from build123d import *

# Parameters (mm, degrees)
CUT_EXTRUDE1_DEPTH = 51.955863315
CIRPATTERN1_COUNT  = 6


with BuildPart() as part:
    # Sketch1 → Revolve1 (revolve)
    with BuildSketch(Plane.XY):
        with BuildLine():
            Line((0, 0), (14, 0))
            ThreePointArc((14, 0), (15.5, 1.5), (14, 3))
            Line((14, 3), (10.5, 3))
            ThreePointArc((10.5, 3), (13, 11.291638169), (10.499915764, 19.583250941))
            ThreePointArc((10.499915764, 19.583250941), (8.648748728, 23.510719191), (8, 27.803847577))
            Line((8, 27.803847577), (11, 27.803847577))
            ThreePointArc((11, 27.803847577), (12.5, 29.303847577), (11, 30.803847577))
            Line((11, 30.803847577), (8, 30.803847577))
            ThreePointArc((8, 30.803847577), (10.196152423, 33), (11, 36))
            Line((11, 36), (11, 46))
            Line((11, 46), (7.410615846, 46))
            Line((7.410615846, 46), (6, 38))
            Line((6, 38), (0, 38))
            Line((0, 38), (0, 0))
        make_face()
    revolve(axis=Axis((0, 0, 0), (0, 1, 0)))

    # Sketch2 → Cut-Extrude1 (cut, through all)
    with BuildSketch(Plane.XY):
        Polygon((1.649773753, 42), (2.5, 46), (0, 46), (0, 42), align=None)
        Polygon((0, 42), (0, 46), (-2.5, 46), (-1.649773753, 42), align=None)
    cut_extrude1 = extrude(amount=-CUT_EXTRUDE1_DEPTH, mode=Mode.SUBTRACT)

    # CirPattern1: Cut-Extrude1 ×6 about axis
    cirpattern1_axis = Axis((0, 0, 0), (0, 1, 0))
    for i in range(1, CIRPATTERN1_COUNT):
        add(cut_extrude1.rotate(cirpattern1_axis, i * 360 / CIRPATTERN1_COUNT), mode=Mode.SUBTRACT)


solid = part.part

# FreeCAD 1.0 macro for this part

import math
import FreeCAD as App
import Part
import Sketcher
Q = App.Units.Quantity

doc = App.newDocument("Part")
params = doc.addObject("Spreadsheet::Sheet", "Params")
for row, (alias, value) in enumerate([
    ("sketch1_radius", "15 mm"),
    ("sketch1_radius2", "6 mm"),
    ("sketch1_radius3", "1.5 mm"),
    ("sketch1_width", "14 mm"),
    ("sketch1_width2", "3 mm"),
    ("revolution_angle", "360 deg"),
    ("sketch2_width", "5 mm"),
], start=1):
    params.set(f"A{row}", alias)
    params.set(f"B{row}", "=" + value)
    params.setAlias(f"B{row}", alias)

body = doc.addObject("PartDesign::Body", "Body")

# Sketch on XY plane
sketch1 = body.newObject("Sketcher::SketchObject", "Sketch")
sketch1.AttachmentSupport = (doc.getObject("XY_Plane"), [""])
sketch1.MapMode = "FlatFace"
sketch1.addGeometry([
    Part.LineSegment(App.Vector(0, 0, 0), App.Vector(14, 0, 0)),  # 0
    Part.ArcOfCircle(Part.Circle(App.Vector(14, 1.5, 0), App.Vector(0, 0, 1), 1.5), math.radians(-90), math.radians(90)),  # 1
    Part.LineSegment(App.Vector(14, 3, 0), App.Vector(10.5, 3, 0)),  # 2
    Part.ArcOfCircle(Part.Circle(App.Vector(-2, 11.3, 0), App.Vector(0, 0, 1), 15), math.radians(-34), math.radians(34)),  # 3
    Part.ArcOfCircle(Part.Circle(App.Vector(23, 27.9, 0), App.Vector(0, 0, 1), 15), math.radians(-180), math.radians(-146)),  # 4
    Part.LineSegment(App.Vector(8, 27.8, 0), App.Vector(11, 27.8, 0)),  # 5
    Part.ArcOfCircle(Part.Circle(App.Vector(11, 29.3, 0), App.Vector(0, 0, 1), 1.5), math.radians(-90), math.radians(90)),  # 6
    Part.LineSegment(App.Vector(11, 30.8, 0), App.Vector(8, 30.8, 0)),  # 7
    Part.ArcOfCircle(Part.Circle(App.Vector(5, 36, 0), App.Vector(0, 0, 1), 6), math.radians(-60), math.radians(0)),  # 8
    Part.LineSegment(App.Vector(11, 36, 0), App.Vector(11, 46, 0)),  # 9
    Part.LineSegment(App.Vector(11, 46, 0), App.Vector(7.4, 46, 0)),  # 10
    Part.LineSegment(App.Vector(7.4, 46, 0), App.Vector(6, 38, 0)),  # 11
    Part.LineSegment(App.Vector(6, 38, 0), App.Vector(0, 38, 0)),  # 12
    Part.LineSegment(App.Vector(0, 38, 0), App.Vector(0, 0, 0)),  # 13
], False)
sketch1.addConstraint([
    Sketcher.Constraint("Tangent", 0, 2, 1, 1),
    Sketcher.Constraint("Tangent", 1, 2, 2, 1),
    Sketcher.Constraint("Coincident", 2, 2, 3, 1),
    Sketcher.Constraint("Tangent", 3, 2, 4, 2),
    Sketcher.Constraint("Coincident", 4, 1, 5, 1),
    Sketcher.Constraint("Tangent", 5, 2, 6, 1),
    Sketcher.Constraint("Tangent", 6, 2, 7, 1),
    Sketcher.Constraint("Coincident", 7, 2, 8, 1),
    Sketcher.Constraint("Tangent", 8, 2, 9, 1),
    Sketcher.Constraint("Coincident", 9, 2, 10, 1),
    Sketcher.Constraint("Coincident", 10, 2, 11, 1),
    Sketcher.Constraint("Coincident", 11, 2, 12, 1),
    Sketcher.Constraint("Coincident", 12, 2, 13, 1),
    Sketcher.Constraint("Coincident", 13, 2, 0, 1),
    Sketcher.Constraint("Horizontal", 0),
    Sketcher.Constraint("Horizontal", 2),
    Sketcher.Constraint("Horizontal", 5),
    Sketcher.Constraint("Horizontal", 7),
    Sketcher.Constraint("Vertical", 9),
    Sketcher.Constraint("Horizontal", 10),
    Sketcher.Constraint("Horizontal", 12),
    Sketcher.Constraint("Vertical", 13),
    Sketcher.Constraint("Coincident", 13, 2, -1, 1),
    Sketcher.Constraint("Equal", 3, 4),
    Sketcher.Constraint("Equal", 1, 6),
    Sketcher.Constraint("Vertical", 4, 1, 7, 2),
    Sketcher.Constraint("Vertical", 6, 2, 8, 2),
    Sketcher.Constraint("Radius", 3, 15.0),
    Sketcher.Constraint("Radius", 8, 6.0),
    Sketcher.Constraint("Radius", 1, 1.5),
    Sketcher.Constraint("DistanceX", 0, 1, 0, 2, 14.0),
    Sketcher.Constraint("DistanceX", 5, 1, 5, 2, 3.0),
    Sketcher.Constraint("DistanceX", 12, 2, 12, 1, 6.0),
    Sketcher.Constraint("DistanceY", 9, 1, 9, 2, 10.0),
    Sketcher.Constraint("DistanceY", 13, 2, 13, 1, 38.0),
    Sketcher.Constraint("Angle", 11, Q("-100 deg")),
    Sketcher.Constraint("DistanceX", 2, 2, 2, 1, 3.5),
    Sketcher.Constraint("DistanceX", 3, 3, -1, 1, 2.0),
    Sketcher.Constraint("DistanceX", -1, 1, 6, 3, 11.0),
    Sketcher.Constraint("DistanceY", -1, 1, 8, 3, 36.0),
])
sketch1.setExpression("Constraints[27]", "Params.sketch1_radius")
sketch1.setExpression("Constraints[28]", "Params.sketch1_radius2")
sketch1.setExpression("Constraints[29]", "Params.sketch1_radius3")
sketch1.setExpression("Constraints[30]", "Params.sketch1_width")
sketch1.setExpression("Constraints[31]", "Params.sketch1_width2")
revolution = body.newObject("PartDesign::Revolution", "Revolution")
revolution.Profile = sketch1
revolution.ReferenceAxis = (sketch1, ["V_Axis"])
revolution.setExpression("Angle", "Params.revolution_angle")

# Sketch on XY plane
sketch2 = body.newObject("Sketcher::SketchObject", "Sketch001")
sketch2.AttachmentSupport = (doc.getObject("XY_Plane"), [""])
sketch2.MapMode = "FlatFace"
sketch2.addGeometry([
    Part.LineSegment(App.Vector(1.6, 42, 0), App.Vector(2.5, 46, 0)),
    Part.LineSegment(App.Vector(2.5, 46, 0), App.Vector(-2.5, 46, 0)),
    Part.LineSegment(App.Vector(-2.5, 46, 0), App.Vector(-1.6, 42, 0)),
    Part.LineSegment(App.Vector(-1.6, 42, 0), App.Vector(1.6, 42, 0)),
], False)
sketch2.addConstraint([
    Sketcher.Constraint("Coincident", 0, 2, 1, 1),
    Sketcher.Constraint("Coincident", 1, 2, 2, 1),
    Sketcher.Constraint("Coincident", 2, 2, 3, 1),
    Sketcher.Constraint("Coincident", 3, 2, 0, 1),
    Sketcher.Constraint("Horizontal", 1),
    Sketcher.Constraint("Horizontal", 3),
    Sketcher.Constraint("Equal", 0, 2),
    Sketcher.Constraint("DistanceX", 1, 2, 1, 1, 5.0),
    Sketcher.Constraint("Angle", 0, Q("78 deg")),
    Sketcher.Constraint("DistanceY", -1, 1, 0, 2, 46.0),
    Sketcher.Constraint("DistanceY", -1, 1, 2, 2, 42.0),
    Sketcher.Constraint("DistanceX", -1, 1, 0, 2, 2.5),
])
sketch2.setExpression("Constraints[7]", "Params.sketch2_width")
pocket1 = body.newObject("PartDesign::Pocket", "Pocket")
pocket1.Profile = sketch2
pocket1.Type = "ThroughAll"
doc.recompute()

polarpattern = body.newObject("PartDesign::PolarPattern", "PolarPattern")
polarpattern.Originals = [pocket1]
polarpattern.Axis = (doc.getObject("Y_Axis"), [""])
polarpattern.Angle = 360
polarpattern.Occurrences = 6
body.Tip = polarpattern

doc.recompute()
